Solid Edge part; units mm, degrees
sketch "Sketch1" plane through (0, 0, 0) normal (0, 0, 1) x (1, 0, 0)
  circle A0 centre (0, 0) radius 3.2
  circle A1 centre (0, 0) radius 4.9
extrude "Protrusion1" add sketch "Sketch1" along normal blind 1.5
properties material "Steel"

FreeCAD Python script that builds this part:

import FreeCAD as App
import Part
import Sketcher
from FreeCAD import Vector
Q = App.Units.Quantity

doc = App.newDocument("Part")
body = doc.addObject("PartDesign::Body", "Body")

# Sketch on XY plane
sketch1 = body.newObject("Sketcher::SketchObject", "Sketch")
sketch1.AttachmentSupport = (doc.getObject("XY_Plane"), [""])
sketch1.MapMode = "FlatFace"
sketch1.addGeometry([
    Part.Circle(Vector(0, 0, 0), Vector(0, 0, 1), 4.9),
    Part.Circle(Vector(0, 0, 0), Vector(0, 0, 1), 3.2),
], False)
sketch1.addConstraint([
    Sketcher.Constraint("Coincident", 0, 3, -1, 1),
    Sketcher.Constraint("Coincident", 1, 3, -1, 1),
    Sketcher.Constraint("Diameter", 0, Q("9.8 mm")),
    Sketcher.Constraint("Diameter", 1, Q("6.4 mm")),
])
pad1 = body.newObject("PartDesign::Pad", "Pad")
pad1.Profile = sketch1
pad1.Length = 1.5

doc.recompute()
